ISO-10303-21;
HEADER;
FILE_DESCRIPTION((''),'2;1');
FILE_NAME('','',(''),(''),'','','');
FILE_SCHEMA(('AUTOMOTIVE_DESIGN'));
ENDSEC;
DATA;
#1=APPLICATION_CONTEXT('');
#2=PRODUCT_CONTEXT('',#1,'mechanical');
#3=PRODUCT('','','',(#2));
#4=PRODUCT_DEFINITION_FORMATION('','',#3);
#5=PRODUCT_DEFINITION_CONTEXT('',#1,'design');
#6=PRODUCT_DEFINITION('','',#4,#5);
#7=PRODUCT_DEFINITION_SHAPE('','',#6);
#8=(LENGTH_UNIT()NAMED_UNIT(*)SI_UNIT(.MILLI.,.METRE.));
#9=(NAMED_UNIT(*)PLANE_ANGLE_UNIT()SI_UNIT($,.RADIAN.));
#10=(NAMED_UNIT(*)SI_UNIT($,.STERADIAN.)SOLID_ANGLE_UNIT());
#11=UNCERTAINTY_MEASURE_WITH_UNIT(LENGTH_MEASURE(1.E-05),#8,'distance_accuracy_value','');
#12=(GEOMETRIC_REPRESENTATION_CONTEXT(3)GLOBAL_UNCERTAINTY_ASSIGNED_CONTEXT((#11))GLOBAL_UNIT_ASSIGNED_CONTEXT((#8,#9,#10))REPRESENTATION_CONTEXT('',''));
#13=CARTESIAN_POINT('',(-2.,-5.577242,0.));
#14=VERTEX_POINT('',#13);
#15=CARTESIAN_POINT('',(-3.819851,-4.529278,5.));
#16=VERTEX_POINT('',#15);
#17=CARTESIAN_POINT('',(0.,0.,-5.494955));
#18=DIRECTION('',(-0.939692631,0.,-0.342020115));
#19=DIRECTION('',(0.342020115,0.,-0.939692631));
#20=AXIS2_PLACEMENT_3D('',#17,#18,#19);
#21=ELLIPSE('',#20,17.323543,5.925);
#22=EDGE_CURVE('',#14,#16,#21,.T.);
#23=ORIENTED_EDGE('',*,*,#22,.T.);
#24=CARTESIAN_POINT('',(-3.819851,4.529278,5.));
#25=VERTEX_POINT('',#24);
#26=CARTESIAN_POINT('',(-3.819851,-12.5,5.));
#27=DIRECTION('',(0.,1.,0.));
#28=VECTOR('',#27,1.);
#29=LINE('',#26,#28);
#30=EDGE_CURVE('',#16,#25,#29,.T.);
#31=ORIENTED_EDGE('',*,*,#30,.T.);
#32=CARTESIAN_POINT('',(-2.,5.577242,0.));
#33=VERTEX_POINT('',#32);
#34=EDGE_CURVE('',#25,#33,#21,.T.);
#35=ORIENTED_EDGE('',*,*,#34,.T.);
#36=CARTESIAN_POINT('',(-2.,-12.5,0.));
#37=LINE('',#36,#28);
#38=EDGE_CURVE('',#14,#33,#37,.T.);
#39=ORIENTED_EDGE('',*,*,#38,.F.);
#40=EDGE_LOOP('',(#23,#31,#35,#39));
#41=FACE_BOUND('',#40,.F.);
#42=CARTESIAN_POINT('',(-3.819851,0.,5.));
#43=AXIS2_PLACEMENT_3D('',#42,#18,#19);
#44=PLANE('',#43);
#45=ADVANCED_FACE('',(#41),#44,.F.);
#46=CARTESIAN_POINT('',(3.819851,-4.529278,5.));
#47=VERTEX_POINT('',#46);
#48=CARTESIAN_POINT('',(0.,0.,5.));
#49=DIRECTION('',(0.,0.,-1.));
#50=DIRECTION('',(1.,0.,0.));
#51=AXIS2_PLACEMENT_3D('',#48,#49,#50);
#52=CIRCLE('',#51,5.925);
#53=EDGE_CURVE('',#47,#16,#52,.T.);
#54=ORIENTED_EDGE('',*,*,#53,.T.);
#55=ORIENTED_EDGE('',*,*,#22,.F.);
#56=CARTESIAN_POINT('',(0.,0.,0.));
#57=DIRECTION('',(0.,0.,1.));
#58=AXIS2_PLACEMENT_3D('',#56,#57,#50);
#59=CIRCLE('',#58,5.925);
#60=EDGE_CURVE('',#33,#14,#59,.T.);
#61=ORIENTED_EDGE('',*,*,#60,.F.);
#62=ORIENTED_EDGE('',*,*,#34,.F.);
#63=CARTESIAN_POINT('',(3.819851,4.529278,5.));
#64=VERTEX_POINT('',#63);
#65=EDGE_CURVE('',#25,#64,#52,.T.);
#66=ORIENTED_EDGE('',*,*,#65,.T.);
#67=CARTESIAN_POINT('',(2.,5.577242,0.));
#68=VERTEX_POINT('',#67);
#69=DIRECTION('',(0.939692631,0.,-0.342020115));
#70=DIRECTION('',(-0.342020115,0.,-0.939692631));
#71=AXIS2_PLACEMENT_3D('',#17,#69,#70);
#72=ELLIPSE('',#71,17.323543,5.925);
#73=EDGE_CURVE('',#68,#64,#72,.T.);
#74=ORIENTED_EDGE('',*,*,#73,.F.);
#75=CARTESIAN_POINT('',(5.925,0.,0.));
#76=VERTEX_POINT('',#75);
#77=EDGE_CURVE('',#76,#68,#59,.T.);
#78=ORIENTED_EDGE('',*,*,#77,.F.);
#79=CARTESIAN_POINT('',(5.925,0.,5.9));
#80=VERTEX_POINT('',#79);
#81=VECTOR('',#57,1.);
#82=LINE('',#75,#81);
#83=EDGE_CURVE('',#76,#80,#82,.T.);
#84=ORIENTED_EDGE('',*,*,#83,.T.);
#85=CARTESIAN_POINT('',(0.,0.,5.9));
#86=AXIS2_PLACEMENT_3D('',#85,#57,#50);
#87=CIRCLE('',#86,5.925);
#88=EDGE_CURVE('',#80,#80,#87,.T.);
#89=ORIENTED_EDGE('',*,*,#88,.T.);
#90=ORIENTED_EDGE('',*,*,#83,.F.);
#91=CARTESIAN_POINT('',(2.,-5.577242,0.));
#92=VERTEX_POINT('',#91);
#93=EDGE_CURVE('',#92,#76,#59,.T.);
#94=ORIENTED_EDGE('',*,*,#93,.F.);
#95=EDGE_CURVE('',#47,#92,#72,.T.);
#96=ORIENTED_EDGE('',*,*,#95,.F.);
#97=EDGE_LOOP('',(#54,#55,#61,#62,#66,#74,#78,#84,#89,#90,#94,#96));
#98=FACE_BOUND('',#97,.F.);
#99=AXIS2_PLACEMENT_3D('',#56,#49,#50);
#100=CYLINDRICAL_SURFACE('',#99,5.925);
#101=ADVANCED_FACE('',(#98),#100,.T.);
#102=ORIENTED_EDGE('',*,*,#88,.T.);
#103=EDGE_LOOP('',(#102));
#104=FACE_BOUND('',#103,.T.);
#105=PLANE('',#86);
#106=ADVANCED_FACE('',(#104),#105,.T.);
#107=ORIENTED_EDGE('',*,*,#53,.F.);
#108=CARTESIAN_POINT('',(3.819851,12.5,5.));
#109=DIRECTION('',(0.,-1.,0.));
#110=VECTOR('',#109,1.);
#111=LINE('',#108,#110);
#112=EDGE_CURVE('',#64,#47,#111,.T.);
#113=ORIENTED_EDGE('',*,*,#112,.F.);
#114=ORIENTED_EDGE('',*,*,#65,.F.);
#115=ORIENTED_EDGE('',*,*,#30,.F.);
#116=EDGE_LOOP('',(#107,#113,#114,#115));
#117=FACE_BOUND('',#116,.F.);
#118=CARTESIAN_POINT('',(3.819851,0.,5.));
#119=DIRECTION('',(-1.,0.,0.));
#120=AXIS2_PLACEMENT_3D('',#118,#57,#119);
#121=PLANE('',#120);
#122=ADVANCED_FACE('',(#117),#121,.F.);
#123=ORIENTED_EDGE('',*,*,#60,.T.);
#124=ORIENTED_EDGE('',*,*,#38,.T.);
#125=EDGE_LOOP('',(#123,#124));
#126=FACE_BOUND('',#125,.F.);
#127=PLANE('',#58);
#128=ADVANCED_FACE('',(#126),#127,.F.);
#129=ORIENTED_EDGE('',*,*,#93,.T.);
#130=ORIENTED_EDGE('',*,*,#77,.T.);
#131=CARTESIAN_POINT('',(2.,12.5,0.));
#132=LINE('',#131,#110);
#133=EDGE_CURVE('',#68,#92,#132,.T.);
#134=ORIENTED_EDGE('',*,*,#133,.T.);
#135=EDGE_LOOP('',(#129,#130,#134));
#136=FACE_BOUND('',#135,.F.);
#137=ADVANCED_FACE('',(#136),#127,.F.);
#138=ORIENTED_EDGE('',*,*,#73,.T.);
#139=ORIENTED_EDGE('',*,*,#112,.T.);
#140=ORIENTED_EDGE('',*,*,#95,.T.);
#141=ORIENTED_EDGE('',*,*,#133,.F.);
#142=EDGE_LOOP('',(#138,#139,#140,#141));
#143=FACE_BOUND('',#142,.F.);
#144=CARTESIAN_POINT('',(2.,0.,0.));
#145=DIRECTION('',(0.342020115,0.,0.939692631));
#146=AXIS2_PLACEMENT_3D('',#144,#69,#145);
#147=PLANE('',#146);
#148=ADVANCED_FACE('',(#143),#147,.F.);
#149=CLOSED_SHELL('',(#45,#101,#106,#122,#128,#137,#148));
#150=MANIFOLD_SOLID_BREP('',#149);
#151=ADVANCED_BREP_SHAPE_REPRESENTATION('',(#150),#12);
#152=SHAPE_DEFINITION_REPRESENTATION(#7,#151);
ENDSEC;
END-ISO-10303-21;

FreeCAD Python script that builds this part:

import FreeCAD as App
import Part
import Sketcher

V = App.Vector
Q = App.Units.Quantity


def add_polygon(sketch, points):
    """Adds a closed chain of lines whose ends are joined by coincident constraints."""
    first, n = sketch.GeometryCount, len(points)
    for a, b in zip(points, points[1:] + points[:1]):
        sketch.addGeometry(Part.LineSegment(App.Vector(*a, 0), App.Vector(*b, 0)), False)
    for i in range(n):
        sketch.addConstraint(Sketcher.Constraint("Coincident", first + i, 2, first + (i + 1) % n, 1))

doc = App.newDocument("Part")
body = doc.addObject("PartDesign::Body", "Body")

# Sketch on XY plane
sketch1 = body.newObject("Sketcher::SketchObject", "Sketch")
sketch1.AttachmentSupport = (doc.getObject("XY_Plane"), [""])
sketch1.MapMode = "FlatFace"
sketch1.addGeometry(Part.Circle(V(0, 0, 0), V(0, 0, 1), 5.925), False)
sketch1.addConstraint([
    Sketcher.Constraint("Coincident", 0, 3, -1, 1),
    Sketcher.Constraint("Diameter", 0, 11.85),
])
pad1 = body.newObject("PartDesign::Pad", "Pad")
pad1.Profile = sketch1
pad1.Length = 5.9

# Sketch on XZ plane
sketch2 = body.newObject("Sketcher::SketchObject", "Sketch001")
sketch2.AttachmentSupport = (doc.getObject("XZ_Plane"), [""])
sketch2.MapMode = "FlatFace"
add_polygon(sketch2, [(-2, 0), (2, 0), (3.819851, 5), (-3.819851, 5)])  # lines 0-3
sketch2.addConstraint([
    Sketcher.Constraint("Horizontal", 0),
    Sketcher.Constraint("Horizontal", 2),
    Sketcher.Constraint("Symmetric", 0, 2, 3, 2, -1, 1),
    Sketcher.Constraint("Equal", 1, 3),
    Sketcher.Constraint("DistanceX", 0, 1, 0, 2, 4.0),
    Sketcher.Constraint("Angle", 1, Q("70.000002 deg")),
    Sketcher.Constraint("DistanceY", -1, 1, 1, 2, 5.0),
])
pocket1 = body.newObject("PartDesign::Pocket", "Pocket")
pocket1.Profile = sketch2
pocket1.Length = 25
pocket1.Midplane = True

doc.recompute()
